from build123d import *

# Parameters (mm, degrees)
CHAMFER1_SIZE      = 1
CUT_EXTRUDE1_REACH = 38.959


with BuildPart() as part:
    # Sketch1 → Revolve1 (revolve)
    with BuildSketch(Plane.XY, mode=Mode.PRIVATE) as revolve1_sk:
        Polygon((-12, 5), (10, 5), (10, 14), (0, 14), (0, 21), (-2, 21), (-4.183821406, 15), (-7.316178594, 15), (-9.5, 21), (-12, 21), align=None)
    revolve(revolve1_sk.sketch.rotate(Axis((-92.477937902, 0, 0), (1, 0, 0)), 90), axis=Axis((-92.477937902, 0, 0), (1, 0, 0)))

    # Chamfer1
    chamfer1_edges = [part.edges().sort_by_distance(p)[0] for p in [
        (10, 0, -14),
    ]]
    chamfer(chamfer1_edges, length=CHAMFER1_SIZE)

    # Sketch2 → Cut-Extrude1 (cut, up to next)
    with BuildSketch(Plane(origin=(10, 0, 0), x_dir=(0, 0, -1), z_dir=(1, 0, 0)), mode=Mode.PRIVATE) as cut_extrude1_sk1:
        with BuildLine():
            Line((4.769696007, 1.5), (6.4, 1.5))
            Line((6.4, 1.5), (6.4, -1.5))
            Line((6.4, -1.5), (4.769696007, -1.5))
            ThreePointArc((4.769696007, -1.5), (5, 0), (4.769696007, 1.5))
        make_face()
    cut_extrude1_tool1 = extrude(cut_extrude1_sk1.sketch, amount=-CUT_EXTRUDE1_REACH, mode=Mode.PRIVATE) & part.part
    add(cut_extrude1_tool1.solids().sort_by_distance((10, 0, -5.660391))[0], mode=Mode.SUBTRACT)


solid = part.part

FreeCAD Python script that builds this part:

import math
import FreeCAD as App
import Part
import Sketcher

V = App.Vector
Q = App.Units.Quantity


def edges_at(feature, points):
    """Names of the edges that pass closest to the given points."""
    edges = feature.Shape.Edges
    near = lambda p: min(range(len(edges)), key=lambda i: edges[i].distToShape(Part.Vertex(*p))[0])
    return sorted({f"Edge{near(p) + 1}" for p in points})

doc = App.newDocument("Part")
body = doc.addObject("PartDesign::Body", "Body")

sketch1 = body.newObject("Sketcher::SketchObject", "Sketch")
sketch1.AttachmentSupport = (doc.getObject("XY_Plane"), [""])
sketch1.MapMode = "FlatFace"
sketch1.addGeometry(Part.LineSegment(V(-12, 5, 0), V(10, 5, 0)), False)
sketch1.addGeometry(Part.LineSegment(V(10, 5, 0), V(10, 14, 0)), False)
sketch1.addGeometry(Part.LineSegment(V(10, 14, 0), V(0, 14, 0)), False)
sketch1.addGeometry(Part.LineSegment(V(0, 14, 0), V(0, 21, 0)), False)
sketch1.addGeometry(Part.LineSegment(V(0, 21, 0), V(-2, 21, 0)), False)
sketch1.addGeometry(Part.LineSegment(V(-2, 21, 0), V(-4.2, 15, 0)), False)
sketch1.addGeometry(Part.LineSegment(V(-4.2, 15, 0), V(-7.3, 15, 0)), False)
sketch1.addGeometry(Part.LineSegment(V(-7.3, 15, 0), V(-9.5, 21, 0)), False)
sketch1.addGeometry(Part.LineSegment(V(-9.5, 21, 0), V(-12, 21, 0)), False)
sketch1.addGeometry(Part.LineSegment(V(-12, 21, 0), V(-12, 5, 0)), False)
sketch1.addConstraint(Sketcher.Constraint("Coincident", 0, 2, 1, 1))
sketch1.addConstraint(Sketcher.Constraint("Coincident", 1, 2, 2, 1))
sketch1.addConstraint(Sketcher.Constraint("Coincident", 2, 2, 3, 1))
sketch1.addConstraint(Sketcher.Constraint("Coincident", 3, 2, 4, 1))
sketch1.addConstraint(Sketcher.Constraint("Coincident", 4, 2, 5, 1))
sketch1.addConstraint(Sketcher.Constraint("Coincident", 5, 2, 6, 1))
sketch1.addConstraint(Sketcher.Constraint("Coincident", 6, 2, 7, 1))
sketch1.addConstraint(Sketcher.Constraint("Coincident", 7, 2, 8, 1))
sketch1.addConstraint(Sketcher.Constraint("Coincident", 8, 2, 9, 1))
sketch1.addConstraint(Sketcher.Constraint("Coincident", 9, 2, 0, 1))
sketch1.addConstraint(Sketcher.Constraint("Horizontal", 0))
sketch1.addConstraint(Sketcher.Constraint("Vertical", 1))
sketch1.addConstraint(Sketcher.Constraint("Horizontal", 2))
sketch1.addConstraint(Sketcher.Constraint("Vertical", 3))
sketch1.addConstraint(Sketcher.Constraint("Horizontal", 4))
sketch1.addConstraint(Sketcher.Constraint("Horizontal", 6))
sketch1.addConstraint(Sketcher.Constraint("Horizontal", 8))
sketch1.addConstraint(Sketcher.Constraint("Vertical", 9))
sketch1.addConstraint(Sketcher.Constraint("PointOnObject", 2, 2, -2))
sketch1.addConstraint(Sketcher.Constraint("Horizontal", 4, 2, 7, 2))
sketch1.addConstraint(Sketcher.Constraint("Equal", 5, 7))
sketch1.addConstraint(Sketcher.Constraint("DistanceX", 0, 1, 0, 2, 22.0))
sketch1.addConstraint(Sketcher.Constraint("DistanceX", 2, 2, 2, 1, 10.0))
sketch1.addConstraint(Sketcher.Constraint("DistanceX", 4, 2, 4, 1, 2.0))
sketch1.addConstraint(Sketcher.Constraint("DistanceY", 1, 1, 1, 2, 9.0))
sketch1.addConstraint(Sketcher.Constraint("DistanceY", 3, 1, 3, 2, 7.0))
sketch1.addConstraint(Sketcher.Constraint("Angle", 5, Q("-110 deg")))
sketch1.addConstraint(Sketcher.Constraint("DistanceX", 8, 2, 8, 1, 2.5))
sketch1.addConstraint(Sketcher.Constraint("DistanceY", -1, 1, 0, 2, 5.0))
sketch1.addConstraint(Sketcher.Constraint("DistanceY", -1, 1, 5, 2, 15.0))
revolution = body.newObject("PartDesign::Revolution", "Revolution")
revolution.Profile = sketch1
revolution.ReferenceAxis = (sketch1, ["H_Axis"])
revolution.Angle = 360
doc.recompute()

chamfer = body.newObject("PartDesign::Chamfer", "Chamfer")
chamfer.Base = (revolution, edges_at(revolution, [(10, 0, -14)]))
chamfer.Size = 1

sketch2 = body.newObject("Sketcher::SketchObject", "Sketch001")
sketch2.AttachmentSupport = (doc.getObject("YZ_Plane"), [""])
sketch2.MapMode = "FlatFace"
sketch2.AttachmentOffset = App.Placement(V(0, 0, 10), App.Rotation())
sketch2.addGeometry(Part.LineSegment(V(1.5, -6.4, 0), V(1.5, -4.8, 0)), False)
sketch2.addGeometry(Part.ArcOfCircle(Part.Circle(V(0, 0, 0), V(0, 0, 1), 5), math.radians(-107), math.radians(-73)), False)
sketch2.addGeometry(Part.LineSegment(V(-1.5, -4.8, 0), V(-1.5, -6.4, 0)), False)
sketch2.addGeometry(Part.LineSegment(V(-1.5, -6.4, 0), V(1.5, -6.4, 0)), False)
sketch2.addConstraint(Sketcher.Constraint("Coincident", 0, 2, 1, 2))
sketch2.addConstraint(Sketcher.Constraint("Coincident", 1, 1, 2, 1))
sketch2.addConstraint(Sketcher.Constraint("Coincident", 2, 2, 3, 1))
sketch2.addConstraint(Sketcher.Constraint("Coincident", 3, 2, 0, 1))
sketch2.addConstraint(Sketcher.Constraint("Vertical", 0))
sketch2.addConstraint(Sketcher.Constraint("Vertical", 2))
sketch2.addConstraint(Sketcher.Constraint("Horizontal", 3))
sketch2.addConstraint(Sketcher.Constraint("Coincident", 1, 3, -1, 1))
sketch2.addConstraint(Sketcher.Constraint("Horizontal", 0, 2, 1, 1))
sketch2.addConstraint(Sketcher.Constraint("Radius", 1, 5.0))
sketch2.addConstraint(Sketcher.Constraint("DistanceX", 3, 1, 3, 2, 3.0))
sketch2.addConstraint(Sketcher.Constraint("DistanceY", 2, 2, -1, 1, 6.4))
pocket1 = body.newObject("PartDesign::Pocket", "Pocket")
pocket1.Profile = sketch2
pocket1.Type = "UpToFirst"

doc.recompute()
